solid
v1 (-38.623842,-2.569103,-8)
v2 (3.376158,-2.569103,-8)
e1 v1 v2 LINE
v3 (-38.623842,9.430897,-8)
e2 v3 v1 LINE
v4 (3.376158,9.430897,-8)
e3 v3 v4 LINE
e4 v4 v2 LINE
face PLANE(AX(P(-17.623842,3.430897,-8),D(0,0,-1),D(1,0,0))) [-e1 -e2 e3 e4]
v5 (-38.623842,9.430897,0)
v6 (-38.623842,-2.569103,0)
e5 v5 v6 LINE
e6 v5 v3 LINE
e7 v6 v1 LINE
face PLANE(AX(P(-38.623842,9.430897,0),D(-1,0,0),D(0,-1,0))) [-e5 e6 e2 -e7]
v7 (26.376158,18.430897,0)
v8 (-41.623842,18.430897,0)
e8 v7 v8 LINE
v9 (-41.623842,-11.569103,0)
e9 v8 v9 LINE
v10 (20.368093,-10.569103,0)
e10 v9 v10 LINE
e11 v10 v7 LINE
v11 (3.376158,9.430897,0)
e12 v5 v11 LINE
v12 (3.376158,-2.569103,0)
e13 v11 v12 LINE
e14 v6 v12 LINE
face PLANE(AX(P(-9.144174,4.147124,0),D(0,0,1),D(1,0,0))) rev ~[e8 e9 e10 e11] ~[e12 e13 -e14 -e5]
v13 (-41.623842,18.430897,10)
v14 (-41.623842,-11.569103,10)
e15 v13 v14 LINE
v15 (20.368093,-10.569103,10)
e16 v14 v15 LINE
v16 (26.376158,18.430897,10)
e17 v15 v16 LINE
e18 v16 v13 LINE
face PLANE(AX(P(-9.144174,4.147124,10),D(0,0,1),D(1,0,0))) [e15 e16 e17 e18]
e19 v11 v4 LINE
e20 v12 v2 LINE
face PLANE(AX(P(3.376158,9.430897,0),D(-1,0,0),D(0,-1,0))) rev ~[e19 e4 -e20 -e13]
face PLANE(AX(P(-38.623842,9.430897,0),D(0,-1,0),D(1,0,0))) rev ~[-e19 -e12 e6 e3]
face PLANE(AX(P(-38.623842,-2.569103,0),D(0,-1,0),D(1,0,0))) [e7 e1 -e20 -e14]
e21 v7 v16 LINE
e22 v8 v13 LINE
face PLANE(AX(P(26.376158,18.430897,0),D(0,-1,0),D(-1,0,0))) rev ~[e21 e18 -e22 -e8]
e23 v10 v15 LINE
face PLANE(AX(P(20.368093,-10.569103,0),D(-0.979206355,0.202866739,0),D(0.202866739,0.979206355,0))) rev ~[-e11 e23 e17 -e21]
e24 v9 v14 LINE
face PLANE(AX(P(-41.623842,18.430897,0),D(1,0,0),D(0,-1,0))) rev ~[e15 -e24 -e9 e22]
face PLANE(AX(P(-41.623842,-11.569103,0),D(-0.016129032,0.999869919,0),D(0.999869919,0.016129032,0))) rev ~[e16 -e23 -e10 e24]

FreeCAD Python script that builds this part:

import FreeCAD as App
import Part
import Sketcher
from FreeCAD import Vector
Q = App.Units.Quantity

doc = App.newDocument("Part")
body = doc.addObject("PartDesign::Body", "Body")

# Sketch on XY plane
sketch1 = doc.addObject("Sketcher::SketchObject", "Sketch")
body.addObject(sketch1)
sketch1.AttachmentSupport = (doc.XY_Plane, [""])
sketch1.MapMode = "FlatFace"
sketch1.addGeometry([
    Part.LineSegment(Vector(26, 18, 0), Vector(-42, 18, 0)),
    Part.LineSegment(Vector(-42, 18, 0), Vector(-42, -12, 0)),
    Part.LineSegment(Vector(-42, -12, 0), Vector(20, -11, 0)),
    Part.LineSegment(Vector(20, -11, 0), Vector(26, 18, 0)),
], False)
sketch1.addConstraint([
    Sketcher.Constraint("Coincident", 0, 2, 1, 1),
    Sketcher.Constraint("Coincident", 1, 2, 2, 1),
    Sketcher.Constraint("Coincident", 2, 2, 3, 1),
    Sketcher.Constraint("Coincident", 3, 2, 0, 1),
    Sketcher.Constraint("Horizontal", 0),
    Sketcher.Constraint("Vertical", 1),
    Sketcher.Constraint("DistanceX", 0, 2, 0, 1, Q("68 mm")),
    Sketcher.Constraint("DistanceY", 1, 2, 1, 1, Q("30 mm")),
    Sketcher.Constraint("Distance", 2, Q("62 mm")),
    Sketcher.Constraint("DistanceY", 1, 2, 2, 2, Q("1 mm")),
    Sketcher.Constraint("DistanceX", -1, 1, 3, 2, Q("26.376158 mm")),
    Sketcher.Constraint("DistanceY", -1, 1, 0, 2, Q("18.430897 mm")),
])
pad1 = doc.addObject("PartDesign::Pad", "Pad")
body.addObject(pad1)
pad1.Profile = sketch1
pad1.Length = 10

# Sketch on XY plane
sketch2 = doc.addObject("Sketcher::SketchObject", "Sketch001")
body.addObject(sketch2)
sketch2.AttachmentSupport = (doc.XY_Plane, [""])
sketch2.MapMode = "FlatFace"
sketch2.addGeometry([
    Part.LineSegment(Vector(-39, -3, 0), Vector(-39, 9, 0)),
    Part.LineSegment(Vector(-39, 9, 0), Vector(3, 9, 0)),
    Part.LineSegment(Vector(3, 9, 0), Vector(3, -3, 0)),
    Part.LineSegment(Vector(3, -3, 0), Vector(-39, -3, 0)),
], False)
sketch2.addConstraint([
    Sketcher.Constraint("Coincident", 0, 2, 1, 1),
    Sketcher.Constraint("Coincident", 1, 2, 2, 1),
    Sketcher.Constraint("Coincident", 2, 2, 3, 1),
    Sketcher.Constraint("Coincident", 3, 2, 0, 1),
    Sketcher.Constraint("Vertical", 0),
    Sketcher.Constraint("Horizontal", 1),
    Sketcher.Constraint("Vertical", 2),
    Sketcher.Constraint("Horizontal", 3),
    Sketcher.Constraint("DistanceX", 1, 1, 1, 2, Q("42 mm")),
    Sketcher.Constraint("DistanceY", 0, 1, 0, 2, Q("12 mm")),
    Sketcher.Constraint("DistanceX", -1, 1, 1, 2, Q("3.376158 mm")),
    Sketcher.Constraint("DistanceY", -1, 1, 0, 2, Q("9.430897 mm")),
])
pad2 = doc.addObject("PartDesign::Pad", "Pad001")
body.addObject(pad2)
pad2.Profile = sketch2
pad2.Length = 8
pad2.Reversed = True

doc.recompute()
